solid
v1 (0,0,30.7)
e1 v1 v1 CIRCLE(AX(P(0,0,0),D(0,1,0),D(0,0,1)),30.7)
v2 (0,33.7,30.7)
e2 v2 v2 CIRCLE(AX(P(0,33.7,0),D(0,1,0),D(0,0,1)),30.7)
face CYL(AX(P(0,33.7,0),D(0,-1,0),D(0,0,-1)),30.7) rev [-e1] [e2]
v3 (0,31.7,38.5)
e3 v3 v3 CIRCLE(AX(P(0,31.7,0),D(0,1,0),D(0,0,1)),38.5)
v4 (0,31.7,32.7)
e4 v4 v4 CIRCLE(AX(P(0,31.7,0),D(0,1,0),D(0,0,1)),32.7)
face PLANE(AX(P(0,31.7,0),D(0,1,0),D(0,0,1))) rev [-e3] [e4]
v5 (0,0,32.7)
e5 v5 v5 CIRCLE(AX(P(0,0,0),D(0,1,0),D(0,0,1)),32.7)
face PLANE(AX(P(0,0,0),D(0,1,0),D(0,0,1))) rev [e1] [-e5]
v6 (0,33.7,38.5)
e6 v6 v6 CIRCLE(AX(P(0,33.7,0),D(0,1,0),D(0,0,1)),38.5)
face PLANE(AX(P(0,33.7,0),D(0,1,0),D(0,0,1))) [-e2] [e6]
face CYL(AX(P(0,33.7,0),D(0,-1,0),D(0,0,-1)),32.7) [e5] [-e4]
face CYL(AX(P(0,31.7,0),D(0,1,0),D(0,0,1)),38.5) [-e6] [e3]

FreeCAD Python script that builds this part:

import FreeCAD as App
import Part
import Sketcher

doc = App.newDocument("Part")
body = doc.addObject("PartDesign::Body", "Body")

sketch1 = doc.addObject("Sketcher::SketchObject", "Sketch")
body.addObject(sketch1)
sketch1.AttachmentSupport = (doc.XZ_Plane, [""])
sketch1.MapMode = "FlatFace"
sketch1.addGeometry([
    Part.Circle(App.Vector(0, 0, 0), App.Vector(0, 0, 1), 33),
    Part.Circle(App.Vector(0, 0, 0), App.Vector(0, 0, 1), 31),
], False)
sketch1.addConstraint([
    Sketcher.Constraint("Coincident", 0, 3, -1, 1),
    Sketcher.Constraint("Coincident", 1, 3, -1, 1),
    Sketcher.Constraint("Diameter", 0, 65.4),
    Sketcher.Constraint("Diameter", 1, 61.4),
])
pad1 = doc.addObject("PartDesign::Pad", "Pad")
body.addObject(pad1)
pad1.Profile = sketch1
pad1.Length = 33.7
pad1.Reversed = True

sketch2 = doc.addObject("Sketcher::SketchObject", "Sketch001")
body.addObject(sketch2)
sketch2.AttachmentSupport = (doc.XZ_Plane, [""])
sketch2.MapMode = "FlatFace"
sketch2.AttachmentOffset = App.Placement(App.Vector(0, 0, -31.7), App.Rotation())
sketch2.addGeometry([
    Part.Circle(App.Vector(0, 0, 0), App.Vector(0, 0, 1), 38),
    Part.Circle(App.Vector(0, 0, 0), App.Vector(0, 0, 1), 31),
], False)
sketch2.addConstraint([
    Sketcher.Constraint("Coincident", 0, 3, -1, 1),
    Sketcher.Constraint("Coincident", 1, 3, -1, 1),
    Sketcher.Constraint("Diameter", 0, 77.0),
    Sketcher.Constraint("Diameter", 1, 61.4),
])
pad2 = doc.addObject("PartDesign::Pad", "Pad001")
body.addObject(pad2)
pad2.Profile = sketch2
pad2.Length = 2
pad2.Reversed = True

doc.recompute()
